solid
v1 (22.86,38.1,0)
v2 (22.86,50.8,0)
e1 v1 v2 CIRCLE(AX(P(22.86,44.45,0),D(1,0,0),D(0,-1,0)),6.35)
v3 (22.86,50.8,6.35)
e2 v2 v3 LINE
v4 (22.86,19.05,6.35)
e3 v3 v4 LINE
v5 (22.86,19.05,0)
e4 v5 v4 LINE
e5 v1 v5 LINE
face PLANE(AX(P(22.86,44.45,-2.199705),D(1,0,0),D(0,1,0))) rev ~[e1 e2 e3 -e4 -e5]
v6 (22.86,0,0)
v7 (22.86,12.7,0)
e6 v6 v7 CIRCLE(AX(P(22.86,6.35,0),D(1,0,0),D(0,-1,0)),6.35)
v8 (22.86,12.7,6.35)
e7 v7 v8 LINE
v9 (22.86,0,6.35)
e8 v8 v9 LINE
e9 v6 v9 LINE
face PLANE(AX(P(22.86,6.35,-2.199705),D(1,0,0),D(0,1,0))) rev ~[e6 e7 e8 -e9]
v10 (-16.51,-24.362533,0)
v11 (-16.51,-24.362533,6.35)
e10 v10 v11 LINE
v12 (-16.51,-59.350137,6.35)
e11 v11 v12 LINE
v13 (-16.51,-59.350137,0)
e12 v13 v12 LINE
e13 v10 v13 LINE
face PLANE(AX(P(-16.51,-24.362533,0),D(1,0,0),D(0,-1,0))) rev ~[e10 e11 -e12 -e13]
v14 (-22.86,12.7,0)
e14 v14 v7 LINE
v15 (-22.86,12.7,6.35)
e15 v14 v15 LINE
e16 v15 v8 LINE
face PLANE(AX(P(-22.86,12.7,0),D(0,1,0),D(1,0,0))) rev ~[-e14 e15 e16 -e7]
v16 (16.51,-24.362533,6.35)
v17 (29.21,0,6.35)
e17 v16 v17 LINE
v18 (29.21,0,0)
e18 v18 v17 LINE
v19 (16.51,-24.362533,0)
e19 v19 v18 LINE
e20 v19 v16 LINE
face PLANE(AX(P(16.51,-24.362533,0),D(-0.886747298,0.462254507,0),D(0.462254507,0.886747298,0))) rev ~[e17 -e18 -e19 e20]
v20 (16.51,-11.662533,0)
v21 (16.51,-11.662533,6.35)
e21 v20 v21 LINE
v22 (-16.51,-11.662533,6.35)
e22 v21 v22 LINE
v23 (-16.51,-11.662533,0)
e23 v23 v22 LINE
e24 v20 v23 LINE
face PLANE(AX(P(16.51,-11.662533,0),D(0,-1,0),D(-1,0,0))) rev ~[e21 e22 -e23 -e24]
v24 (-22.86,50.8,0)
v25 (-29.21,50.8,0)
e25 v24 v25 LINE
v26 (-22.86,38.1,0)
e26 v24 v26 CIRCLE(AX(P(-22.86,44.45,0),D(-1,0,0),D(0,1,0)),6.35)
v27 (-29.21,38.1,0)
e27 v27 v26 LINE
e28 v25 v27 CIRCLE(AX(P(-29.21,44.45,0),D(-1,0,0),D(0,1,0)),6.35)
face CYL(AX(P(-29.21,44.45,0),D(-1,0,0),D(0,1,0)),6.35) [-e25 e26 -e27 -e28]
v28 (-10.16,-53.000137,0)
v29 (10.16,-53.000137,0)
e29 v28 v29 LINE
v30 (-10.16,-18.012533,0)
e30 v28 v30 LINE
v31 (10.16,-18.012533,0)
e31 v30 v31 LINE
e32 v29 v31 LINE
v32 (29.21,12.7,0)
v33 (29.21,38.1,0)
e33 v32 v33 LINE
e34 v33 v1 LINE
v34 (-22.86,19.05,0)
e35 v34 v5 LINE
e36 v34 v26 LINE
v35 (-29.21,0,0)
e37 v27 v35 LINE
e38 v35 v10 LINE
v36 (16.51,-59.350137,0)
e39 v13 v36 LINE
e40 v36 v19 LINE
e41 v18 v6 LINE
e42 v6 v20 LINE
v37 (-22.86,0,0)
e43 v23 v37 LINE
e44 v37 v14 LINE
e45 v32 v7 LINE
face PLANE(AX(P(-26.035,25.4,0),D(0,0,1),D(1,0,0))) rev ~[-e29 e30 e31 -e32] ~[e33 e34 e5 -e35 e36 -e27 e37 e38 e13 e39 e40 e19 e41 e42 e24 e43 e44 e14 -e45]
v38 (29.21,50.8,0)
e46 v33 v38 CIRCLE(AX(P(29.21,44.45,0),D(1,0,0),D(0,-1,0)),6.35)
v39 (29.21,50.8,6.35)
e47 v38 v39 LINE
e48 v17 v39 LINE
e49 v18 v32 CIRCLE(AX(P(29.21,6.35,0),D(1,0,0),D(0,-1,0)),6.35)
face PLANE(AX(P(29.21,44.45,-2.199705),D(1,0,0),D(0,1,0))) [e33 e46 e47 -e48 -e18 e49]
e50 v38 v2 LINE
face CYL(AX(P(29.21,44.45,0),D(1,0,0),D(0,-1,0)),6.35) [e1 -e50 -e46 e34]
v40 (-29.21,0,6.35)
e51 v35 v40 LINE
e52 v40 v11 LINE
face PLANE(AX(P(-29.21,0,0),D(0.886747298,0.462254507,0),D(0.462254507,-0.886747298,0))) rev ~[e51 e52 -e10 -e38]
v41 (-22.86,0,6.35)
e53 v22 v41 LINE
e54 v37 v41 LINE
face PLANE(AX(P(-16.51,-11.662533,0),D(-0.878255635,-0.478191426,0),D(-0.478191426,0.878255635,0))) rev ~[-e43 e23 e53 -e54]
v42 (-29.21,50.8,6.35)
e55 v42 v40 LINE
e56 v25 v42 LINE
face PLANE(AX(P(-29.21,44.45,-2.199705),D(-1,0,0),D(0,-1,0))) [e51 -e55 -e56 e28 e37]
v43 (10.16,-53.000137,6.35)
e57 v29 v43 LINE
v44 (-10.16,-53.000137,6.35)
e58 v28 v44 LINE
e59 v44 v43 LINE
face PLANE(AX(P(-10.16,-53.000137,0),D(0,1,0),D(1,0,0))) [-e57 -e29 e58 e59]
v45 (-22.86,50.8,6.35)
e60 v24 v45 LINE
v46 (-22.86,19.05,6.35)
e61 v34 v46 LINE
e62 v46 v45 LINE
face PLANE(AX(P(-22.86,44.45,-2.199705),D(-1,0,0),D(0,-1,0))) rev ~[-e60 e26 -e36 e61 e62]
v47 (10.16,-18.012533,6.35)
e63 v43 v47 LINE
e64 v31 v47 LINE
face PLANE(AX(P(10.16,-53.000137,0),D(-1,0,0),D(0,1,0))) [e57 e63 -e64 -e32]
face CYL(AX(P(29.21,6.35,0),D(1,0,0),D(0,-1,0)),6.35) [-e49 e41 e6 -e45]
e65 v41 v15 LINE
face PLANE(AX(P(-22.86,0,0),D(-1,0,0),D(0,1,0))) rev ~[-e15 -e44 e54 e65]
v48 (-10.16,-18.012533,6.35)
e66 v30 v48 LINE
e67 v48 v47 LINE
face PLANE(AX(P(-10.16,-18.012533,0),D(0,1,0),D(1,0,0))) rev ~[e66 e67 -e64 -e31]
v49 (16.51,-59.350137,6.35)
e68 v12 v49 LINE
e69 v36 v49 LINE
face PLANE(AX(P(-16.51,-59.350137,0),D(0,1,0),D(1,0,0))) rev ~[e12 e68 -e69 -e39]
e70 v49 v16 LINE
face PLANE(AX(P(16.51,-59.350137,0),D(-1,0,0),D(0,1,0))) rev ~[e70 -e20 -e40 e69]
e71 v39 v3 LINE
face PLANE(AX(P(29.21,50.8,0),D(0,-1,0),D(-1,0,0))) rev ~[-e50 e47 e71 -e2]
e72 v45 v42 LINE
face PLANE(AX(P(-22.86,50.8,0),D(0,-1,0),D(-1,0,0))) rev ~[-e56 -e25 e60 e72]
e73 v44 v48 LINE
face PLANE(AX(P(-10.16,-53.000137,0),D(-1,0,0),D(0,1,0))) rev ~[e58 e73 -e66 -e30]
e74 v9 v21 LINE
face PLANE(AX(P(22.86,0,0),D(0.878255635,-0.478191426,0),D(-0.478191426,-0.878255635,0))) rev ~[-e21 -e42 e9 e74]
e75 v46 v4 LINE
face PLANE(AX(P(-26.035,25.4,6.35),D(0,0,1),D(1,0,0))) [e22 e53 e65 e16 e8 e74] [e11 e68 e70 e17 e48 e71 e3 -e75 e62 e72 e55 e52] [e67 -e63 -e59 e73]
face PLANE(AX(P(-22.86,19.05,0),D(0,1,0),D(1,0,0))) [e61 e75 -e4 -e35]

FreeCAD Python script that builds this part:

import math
import FreeCAD as App
import Part
import Sketcher
from FreeCAD import Vector
Q = App.Units.Quantity


def add_polygon(sketch, points):
    """Adds a closed chain of lines whose ends are joined by coincident constraints."""
    first, n = sketch.GeometryCount, len(points)
    for a, b in zip(points, points[1:] + points[:1]):
        sketch.addGeometry(Part.LineSegment(App.Vector(*a, 0), App.Vector(*b, 0)), False)
    for i in range(n):
        sketch.addConstraint(Sketcher.Constraint("Coincident", first + i, 2, first + (i + 1) % n, 1))

doc = App.newDocument("Part")
body = doc.addObject("PartDesign::Body", "Body")

sketch1 = body.newObject("Sketcher::SketchObject", "Sketch")
sketch1.AttachmentSupport = (doc.getObject("XY_Plane"), [""])
sketch1.MapMode = "FlatFace"
add_polygon(sketch1, [(-23, 51), (-29, 51), (-29, 0), (-17, -24), (-17, -59), (17, -59), (17, -24), (29, 0), (29, 51), (23, 51), (23, 19), (-23, 19)])
add_polygon(sketch1, [(17, -12), (-17, -12), (-23, 0), (-23, 13), (23, 13), (23, 0)])
add_polygon(sketch1, [(10, -53), (-10, -53), (-10, -18), (10, -18)])
sketch1.addConstraint(Sketcher.Constraint("Horizontal", 0))
sketch1.addConstraint(Sketcher.Constraint("Vertical", 1))
sketch1.addConstraint(Sketcher.Constraint("Vertical", 3))
sketch1.addConstraint(Sketcher.Constraint("Horizontal", 4))
sketch1.addConstraint(Sketcher.Constraint("Vertical", 5))
sketch1.addConstraint(Sketcher.Constraint("Vertical", 7))
sketch1.addConstraint(Sketcher.Constraint("Horizontal", 8))
sketch1.addConstraint(Sketcher.Constraint("Vertical", 9))
sketch1.addConstraint(Sketcher.Constraint("Horizontal", 10))
sketch1.addConstraint(Sketcher.Constraint("Vertical", 11))
sketch1.addConstraint(Sketcher.Constraint("Horizontal", 12))
sketch1.addConstraint(Sketcher.Constraint("Vertical", 14))
sketch1.addConstraint(Sketcher.Constraint("Horizontal", 15))
sketch1.addConstraint(Sketcher.Constraint("Vertical", 16))
sketch1.addConstraint(Sketcher.Constraint("Horizontal", 18))
sketch1.addConstraint(Sketcher.Constraint("Vertical", 19))
sketch1.addConstraint(Sketcher.Constraint("Horizontal", 20))
sketch1.addConstraint(Sketcher.Constraint("Vertical", 21))
sketch1.addConstraint(Sketcher.Constraint("Symmetric", 1, 2, 6, 2, -1, 1))
sketch1.addConstraint(Sketcher.Constraint("Symmetric", 13, 2, 16, 2, -1, 1))
sketch1.addConstraint(Sketcher.Constraint("Symmetric", 2, 2, 5, 2, -2))
sketch1.addConstraint(Sketcher.Constraint("Symmetric", 8, 2, 11, 2, -2))
sketch1.addConstraint(Sketcher.Constraint("PointOnObject", 1, 2, -1))
sketch1.addConstraint(Sketcher.Constraint("PointOnObject", 13, 2, -1))
sketch1.addConstraint(Sketcher.Constraint("Vertical", 3, 2, 12, 2))
sketch1.addConstraint(Sketcher.Constraint("Vertical", 11, 2, 13, 2))
sketch1.addConstraint(Sketcher.Constraint("Vertical", 5, 2, 17, 2))
sketch1.addConstraint(Sketcher.Constraint("Equal", 5, 19))
sketch1.addConstraint(Sketcher.Constraint("DistanceY", 1, 2, 1, 1, Q("2 in")))
sketch1.addConstraint(Sketcher.Constraint("DistanceX", 4, 1, 4, 2, Q("1.3 in")))
sketch1.addConstraint(Sketcher.Constraint("DistanceX", 10, 2, 10, 1, Q("1.8 in")))
sketch1.addConstraint(Sketcher.Constraint("DistanceX", 18, 2, 18, 1, Q("0.8 in")))
sketch1.addConstraint(Sketcher.Constraint("DistanceY", 14, 1, 14, 2, Q("0.5 in")))
sketch1.addConstraint(Sketcher.Constraint("DistanceX", 0, 2, 0, 1, Q("0.25 in")))
sketch1.addConstraint(Sketcher.Constraint("DistanceY", 9, 2, 9, 1, Q("1.25 in")))
sketch1.addConstraint(Sketcher.Constraint("DistanceX", 18, 2, -1, 1, Q("0.4 in")))
sketch1.addConstraint(Sketcher.Constraint("DistanceY", 2, 2, 12, 2, Q("0.5 in")))
sketch1.addConstraint(Sketcher.Constraint("DistanceY", 3, 2, 18, 2, Q("0.25 in")))
sketch1.addConstraint(Sketcher.Constraint("Distance", 13, Q("13.279201 mm")))
sketch1.addConstraint(Sketcher.Constraint("DistanceY", 3, 2, 3, 1, Q("34.987604 mm")))
pad1 = body.newObject("PartDesign::Pad", "Pad")
pad1.Profile = sketch1
pad1.Length = Q("0.25 in")

sketch2 = body.newObject("Sketcher::SketchObject", "Sketch001")
sketch2.AttachmentSupport = (doc.getObject("YZ_Plane"), [""])
sketch2.MapMode = "FlatFace"
sketch2.AttachmentOffset = App.Placement(Vector(0, 0, 1.15 * 25.4), App.Rotation())
sketch2.addGeometry(Part.LineSegment(Vector(51, 0, 0), Vector(38, 0, 0)), False)
sketch2.addGeometry(Part.ArcOfCircle(Part.Circle(Vector(44, 0, 0), Vector(0, 0, 1), 6), math.radians(180), math.radians(360)), False)
sketch2.addGeometry(Part.LineSegment(Vector(13, 0, 0), Vector(0, 0, 0)), False)
sketch2.addGeometry(Part.ArcOfCircle(Part.Circle(Vector(6, 0, 0), Vector(0, 0, 1), 6), math.radians(180), math.radians(360)), False)
sketch2.addConstraint(Sketcher.Constraint("Coincident", 0, 1, 1, 2))
sketch2.addConstraint(Sketcher.Constraint("Coincident", 1, 1, 0, 2))
sketch2.addConstraint(Sketcher.Constraint("Coincident", 2, 1, 3, 2))
sketch2.addConstraint(Sketcher.Constraint("Coincident", 3, 1, 2, 2))
sketch2.addConstraint(Sketcher.Constraint("Horizontal", 0))
sketch2.addConstraint(Sketcher.Constraint("Horizontal", 2))
sketch2.addConstraint(Sketcher.Constraint("Coincident", 3, 1, -1, 1))
sketch2.addConstraint(Sketcher.Constraint("Equal", 1, 3))
sketch2.addConstraint(Sketcher.Constraint("PointOnObject", 1, 3, -1))
sketch2.addConstraint(Sketcher.Constraint("PointOnObject", 3, 3, -1))
sketch2.addConstraint(Sketcher.Constraint("PointOnObject", 0, 1, -1))
sketch2.addConstraint(Sketcher.Constraint("Radius", 1, Q("0.25 in")))
sketch2.addConstraint(Sketcher.Constraint("DistanceX", -1, 1, 0, 1, Q("2 in")))
pad2 = body.newObject("PartDesign::Pad", "Pad001")
pad2.Profile = sketch2
pad2.Length = Q("0.25 in")
pad2.Reversed = True

sketch3 = body.newObject("Sketcher::SketchObject", "Sketch002")
sketch3.AttachmentSupport = (doc.getObject("YZ_Plane"), [""])
sketch3.MapMode = "FlatFace"
sketch3.AttachmentOffset = App.Placement(Vector(0, 0, -1.15 * 25.4), App.Rotation())
sketch3.addGeometry(Part.LineSegment(Vector(38, 0, 0), Vector(51, 0, 0)), False)
sketch3.addGeometry(Part.ArcOfCircle(Part.Circle(Vector(44, 0, 0), Vector(0, 0, 1), 6), math.radians(180), math.radians(360)), False)
sketch3.addConstraint(Sketcher.Constraint("Coincident", 0, 1, 1, 1))
sketch3.addConstraint(Sketcher.Constraint("Coincident", 1, 2, 0, 2))
sketch3.addConstraint(Sketcher.Constraint("Horizontal", 0))
sketch3.addConstraint(Sketcher.Constraint("PointOnObject", 1, 3, -1))
sketch3.addConstraint(Sketcher.Constraint("PointOnObject", 0, 1, -1))
sketch3.addConstraint(Sketcher.Constraint("Radius", 1, Q("0.25 in")))
sketch3.addConstraint(Sketcher.Constraint("DistanceX", -1, 1, 1, 2, Q("2 in")))
pad3 = body.newObject("PartDesign::Pad", "Pad002")
pad3.Profile = sketch3
pad3.Length = Q("0.25 in")

doc.recompute()
